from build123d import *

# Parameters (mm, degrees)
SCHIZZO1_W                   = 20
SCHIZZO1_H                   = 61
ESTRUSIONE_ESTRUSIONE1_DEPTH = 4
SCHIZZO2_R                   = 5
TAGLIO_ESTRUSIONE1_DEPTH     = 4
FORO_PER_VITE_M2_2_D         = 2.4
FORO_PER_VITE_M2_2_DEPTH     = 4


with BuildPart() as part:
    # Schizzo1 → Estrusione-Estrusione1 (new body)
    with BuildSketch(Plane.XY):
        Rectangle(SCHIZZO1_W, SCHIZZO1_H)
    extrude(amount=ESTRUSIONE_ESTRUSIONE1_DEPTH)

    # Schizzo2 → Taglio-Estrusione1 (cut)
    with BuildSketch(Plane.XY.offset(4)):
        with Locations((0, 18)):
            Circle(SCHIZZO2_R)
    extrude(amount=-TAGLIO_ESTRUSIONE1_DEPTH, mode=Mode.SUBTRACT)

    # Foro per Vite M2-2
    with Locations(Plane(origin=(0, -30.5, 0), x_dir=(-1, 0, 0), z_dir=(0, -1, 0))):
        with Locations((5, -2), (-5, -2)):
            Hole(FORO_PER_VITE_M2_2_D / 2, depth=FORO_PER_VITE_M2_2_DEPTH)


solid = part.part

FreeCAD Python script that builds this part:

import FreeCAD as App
import Part
import Sketcher

V = App.Vector


def add_polygon(sketch, points):
    """Adds a closed chain of lines whose ends are joined by coincident constraints."""
    first, n = sketch.GeometryCount, len(points)
    for a, b in zip(points, points[1:] + points[:1]):
        sketch.addGeometry(Part.LineSegment(App.Vector(*a, 0), App.Vector(*b, 0)), False)
    for i in range(n):
        sketch.addConstraint(Sketcher.Constraint("Coincident", first + i, 2, first + (i + 1) % n, 1))

doc = App.newDocument("Part")
body = doc.addObject("PartDesign::Body", "Body")

sketch1 = body.newObject("Sketcher::SketchObject", "Sketch")
sketch1.AttachmentSupport = (doc.getObject("XY_Plane"), [""])
sketch1.MapMode = "FlatFace"
add_polygon(sketch1, [(-10, 30.5), (-10, -30.5), (10, -30.5), (10, 30.5)])
sketch1.addConstraint([
    Sketcher.Constraint("Vertical", 0),
    Sketcher.Constraint("Horizontal", 1),
    Sketcher.Constraint("Vertical", 2),
    Sketcher.Constraint("Horizontal", 3),
    Sketcher.Constraint("Symmetric", 0, 2, 2, 2, -1, 1),
    Sketcher.Constraint("DistanceX", 1, 1, 1, 2, 20.0),
    Sketcher.Constraint("DistanceY", 0, 2, 0, 1, 61.0),
])
pad1 = body.newObject("PartDesign::Pad", "Pad")
pad1.Profile = sketch1
pad1.Length = 4

sketch2 = body.newObject("Sketcher::SketchObject", "Sketch001")
sketch2.AttachmentSupport = (doc.getObject("XY_Plane"), [""])
sketch2.MapMode = "FlatFace"
sketch2.AttachmentOffset = App.Placement(V(0, 0, 4), App.Rotation())
sketch2.addGeometry(Part.Circle(V(0, 18, 0), V(0, 0, 1), 5), False)
sketch2.addConstraint([
    Sketcher.Constraint("PointOnObject", 0, 3, -2),
    Sketcher.Constraint("Diameter", 0, 10.0),
    Sketcher.Constraint("DistanceY", -1, 1, 0, 3, 18.0),
])
pocket1 = body.newObject("PartDesign::Pocket", "Pocket")
pocket1.Profile = sketch2
pocket1.Length = 4

sketch3 = body.newObject("Sketcher::SketchObject", "Sketch002")
sketch3.AttachmentSupport = (doc.getObject("XZ_Plane"), [""])
sketch3.MapMode = "FlatFace"
sketch3.AttachmentOffset = App.Placement(V(0, 0, 30.5), App.Rotation())
sketch3.addGeometry([
    Part.Circle(V(-5, 2, 0), V(0, 0, 1), 1.2),
    Part.Circle(V(5, 2, 0), V(0, 0, 1), 1.2),
], False)
sketch3.addConstraint([
    Sketcher.Constraint("Equal", 0, 1),
    Sketcher.Constraint("Symmetric", 0, 3, 1, 3, -2),
    Sketcher.Constraint("Diameter", 0, 2.4),
    Sketcher.Constraint("DistanceX", 0, 3, -1, 1, 5.0),
    Sketcher.Constraint("DistanceY", -1, 1, 0, 3, 2.0),
])
doc.recompute()
hole = body.newObject("PartDesign::Hole", "Hole")
hole.Profile = sketch3
hole.ThreadType = "None"
hole.Diameter = 2.4
hole.DepthType = "Dimension"
hole.Depth = 4
hole.DrillPoint = "Flat"

doc.recompute()
